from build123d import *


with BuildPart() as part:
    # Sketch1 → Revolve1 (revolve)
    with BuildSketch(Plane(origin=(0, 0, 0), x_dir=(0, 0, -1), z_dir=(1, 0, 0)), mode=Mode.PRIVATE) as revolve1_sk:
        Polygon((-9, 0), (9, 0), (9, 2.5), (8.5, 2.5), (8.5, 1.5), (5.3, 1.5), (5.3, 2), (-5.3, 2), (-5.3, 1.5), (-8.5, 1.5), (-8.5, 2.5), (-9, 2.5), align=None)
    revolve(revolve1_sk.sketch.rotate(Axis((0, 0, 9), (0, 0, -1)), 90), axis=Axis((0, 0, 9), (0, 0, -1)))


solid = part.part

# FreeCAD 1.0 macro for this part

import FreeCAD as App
import Part
import Sketcher

V = App.Vector


def add_polygon(sketch, points):
    """Adds a closed chain of lines whose ends are joined by coincident constraints."""
    first, n = sketch.GeometryCount, len(points)
    for a, b in zip(points, points[1:] + points[:1]):
        sketch.addGeometry(Part.LineSegment(App.Vector(*a, 0), App.Vector(*b, 0)), False)
    for i in range(n):
        sketch.addConstraint(Sketcher.Constraint("Coincident", first + i, 2, first + (i + 1) % n, 1))

doc = App.newDocument("Part")
body = doc.addObject("PartDesign::Body", "Body")

sketch1 = body.newObject("Sketcher::SketchObject", "Sketch")
sketch1.AttachmentSupport = (doc.getObject("YZ_Plane"), [""])
sketch1.MapMode = "FlatFace"
add_polygon(sketch1, [(0, 9), (0, -9), (2.5, -9), (2.5, -8.5), (1.5, -8.5), (1.5, -5.3), (2, -5.3), (2, 5.3), (1.5, 5.3), (1.5, 8.5), (2.5, 8.5), (2.5, 9)])
sketch1.addConstraint([
    Sketcher.Constraint("Vertical", 0),
    Sketcher.Constraint("Horizontal", 1),
    Sketcher.Constraint("Vertical", 2),
    Sketcher.Constraint("Horizontal", 3),
    Sketcher.Constraint("Vertical", 4),
    Sketcher.Constraint("Horizontal", 5),
    Sketcher.Constraint("Vertical", 6),
    Sketcher.Constraint("Horizontal", 7),
    Sketcher.Constraint("Vertical", 8),
    Sketcher.Constraint("Horizontal", 9),
    Sketcher.Constraint("Vertical", 10),
    Sketcher.Constraint("Horizontal", 11),
    Sketcher.Constraint("Symmetric", 0, 2, 11, 2, -1, 1),
    Sketcher.Constraint("Symmetric", 4, 2, 7, 2, -1),
    Sketcher.Constraint("Symmetric", 2, 2, 9, 2, -1),
    Sketcher.Constraint("Equal", 7, 2),
    Sketcher.Constraint("DistanceX", 3, 2, 3, 1, 1.0),
    Sketcher.Constraint("DistanceY", 0, 2, 0, 1, 18.0),
    Sketcher.Constraint("DistanceX", 1, 1, 1, 2, 2.5),
    Sketcher.Constraint("DistanceX", 5, 1, 5, 2, 0.5),
    Sketcher.Constraint("DistanceY", 4, 1, 4, 2, 3.2),
])
revolution = body.newObject("PartDesign::Revolution", "Revolution")
revolution.Profile = sketch1
revolution.ReferenceAxis = (sketch1, ["V_Axis"])
revolution.Angle = 360

doc.recompute()
